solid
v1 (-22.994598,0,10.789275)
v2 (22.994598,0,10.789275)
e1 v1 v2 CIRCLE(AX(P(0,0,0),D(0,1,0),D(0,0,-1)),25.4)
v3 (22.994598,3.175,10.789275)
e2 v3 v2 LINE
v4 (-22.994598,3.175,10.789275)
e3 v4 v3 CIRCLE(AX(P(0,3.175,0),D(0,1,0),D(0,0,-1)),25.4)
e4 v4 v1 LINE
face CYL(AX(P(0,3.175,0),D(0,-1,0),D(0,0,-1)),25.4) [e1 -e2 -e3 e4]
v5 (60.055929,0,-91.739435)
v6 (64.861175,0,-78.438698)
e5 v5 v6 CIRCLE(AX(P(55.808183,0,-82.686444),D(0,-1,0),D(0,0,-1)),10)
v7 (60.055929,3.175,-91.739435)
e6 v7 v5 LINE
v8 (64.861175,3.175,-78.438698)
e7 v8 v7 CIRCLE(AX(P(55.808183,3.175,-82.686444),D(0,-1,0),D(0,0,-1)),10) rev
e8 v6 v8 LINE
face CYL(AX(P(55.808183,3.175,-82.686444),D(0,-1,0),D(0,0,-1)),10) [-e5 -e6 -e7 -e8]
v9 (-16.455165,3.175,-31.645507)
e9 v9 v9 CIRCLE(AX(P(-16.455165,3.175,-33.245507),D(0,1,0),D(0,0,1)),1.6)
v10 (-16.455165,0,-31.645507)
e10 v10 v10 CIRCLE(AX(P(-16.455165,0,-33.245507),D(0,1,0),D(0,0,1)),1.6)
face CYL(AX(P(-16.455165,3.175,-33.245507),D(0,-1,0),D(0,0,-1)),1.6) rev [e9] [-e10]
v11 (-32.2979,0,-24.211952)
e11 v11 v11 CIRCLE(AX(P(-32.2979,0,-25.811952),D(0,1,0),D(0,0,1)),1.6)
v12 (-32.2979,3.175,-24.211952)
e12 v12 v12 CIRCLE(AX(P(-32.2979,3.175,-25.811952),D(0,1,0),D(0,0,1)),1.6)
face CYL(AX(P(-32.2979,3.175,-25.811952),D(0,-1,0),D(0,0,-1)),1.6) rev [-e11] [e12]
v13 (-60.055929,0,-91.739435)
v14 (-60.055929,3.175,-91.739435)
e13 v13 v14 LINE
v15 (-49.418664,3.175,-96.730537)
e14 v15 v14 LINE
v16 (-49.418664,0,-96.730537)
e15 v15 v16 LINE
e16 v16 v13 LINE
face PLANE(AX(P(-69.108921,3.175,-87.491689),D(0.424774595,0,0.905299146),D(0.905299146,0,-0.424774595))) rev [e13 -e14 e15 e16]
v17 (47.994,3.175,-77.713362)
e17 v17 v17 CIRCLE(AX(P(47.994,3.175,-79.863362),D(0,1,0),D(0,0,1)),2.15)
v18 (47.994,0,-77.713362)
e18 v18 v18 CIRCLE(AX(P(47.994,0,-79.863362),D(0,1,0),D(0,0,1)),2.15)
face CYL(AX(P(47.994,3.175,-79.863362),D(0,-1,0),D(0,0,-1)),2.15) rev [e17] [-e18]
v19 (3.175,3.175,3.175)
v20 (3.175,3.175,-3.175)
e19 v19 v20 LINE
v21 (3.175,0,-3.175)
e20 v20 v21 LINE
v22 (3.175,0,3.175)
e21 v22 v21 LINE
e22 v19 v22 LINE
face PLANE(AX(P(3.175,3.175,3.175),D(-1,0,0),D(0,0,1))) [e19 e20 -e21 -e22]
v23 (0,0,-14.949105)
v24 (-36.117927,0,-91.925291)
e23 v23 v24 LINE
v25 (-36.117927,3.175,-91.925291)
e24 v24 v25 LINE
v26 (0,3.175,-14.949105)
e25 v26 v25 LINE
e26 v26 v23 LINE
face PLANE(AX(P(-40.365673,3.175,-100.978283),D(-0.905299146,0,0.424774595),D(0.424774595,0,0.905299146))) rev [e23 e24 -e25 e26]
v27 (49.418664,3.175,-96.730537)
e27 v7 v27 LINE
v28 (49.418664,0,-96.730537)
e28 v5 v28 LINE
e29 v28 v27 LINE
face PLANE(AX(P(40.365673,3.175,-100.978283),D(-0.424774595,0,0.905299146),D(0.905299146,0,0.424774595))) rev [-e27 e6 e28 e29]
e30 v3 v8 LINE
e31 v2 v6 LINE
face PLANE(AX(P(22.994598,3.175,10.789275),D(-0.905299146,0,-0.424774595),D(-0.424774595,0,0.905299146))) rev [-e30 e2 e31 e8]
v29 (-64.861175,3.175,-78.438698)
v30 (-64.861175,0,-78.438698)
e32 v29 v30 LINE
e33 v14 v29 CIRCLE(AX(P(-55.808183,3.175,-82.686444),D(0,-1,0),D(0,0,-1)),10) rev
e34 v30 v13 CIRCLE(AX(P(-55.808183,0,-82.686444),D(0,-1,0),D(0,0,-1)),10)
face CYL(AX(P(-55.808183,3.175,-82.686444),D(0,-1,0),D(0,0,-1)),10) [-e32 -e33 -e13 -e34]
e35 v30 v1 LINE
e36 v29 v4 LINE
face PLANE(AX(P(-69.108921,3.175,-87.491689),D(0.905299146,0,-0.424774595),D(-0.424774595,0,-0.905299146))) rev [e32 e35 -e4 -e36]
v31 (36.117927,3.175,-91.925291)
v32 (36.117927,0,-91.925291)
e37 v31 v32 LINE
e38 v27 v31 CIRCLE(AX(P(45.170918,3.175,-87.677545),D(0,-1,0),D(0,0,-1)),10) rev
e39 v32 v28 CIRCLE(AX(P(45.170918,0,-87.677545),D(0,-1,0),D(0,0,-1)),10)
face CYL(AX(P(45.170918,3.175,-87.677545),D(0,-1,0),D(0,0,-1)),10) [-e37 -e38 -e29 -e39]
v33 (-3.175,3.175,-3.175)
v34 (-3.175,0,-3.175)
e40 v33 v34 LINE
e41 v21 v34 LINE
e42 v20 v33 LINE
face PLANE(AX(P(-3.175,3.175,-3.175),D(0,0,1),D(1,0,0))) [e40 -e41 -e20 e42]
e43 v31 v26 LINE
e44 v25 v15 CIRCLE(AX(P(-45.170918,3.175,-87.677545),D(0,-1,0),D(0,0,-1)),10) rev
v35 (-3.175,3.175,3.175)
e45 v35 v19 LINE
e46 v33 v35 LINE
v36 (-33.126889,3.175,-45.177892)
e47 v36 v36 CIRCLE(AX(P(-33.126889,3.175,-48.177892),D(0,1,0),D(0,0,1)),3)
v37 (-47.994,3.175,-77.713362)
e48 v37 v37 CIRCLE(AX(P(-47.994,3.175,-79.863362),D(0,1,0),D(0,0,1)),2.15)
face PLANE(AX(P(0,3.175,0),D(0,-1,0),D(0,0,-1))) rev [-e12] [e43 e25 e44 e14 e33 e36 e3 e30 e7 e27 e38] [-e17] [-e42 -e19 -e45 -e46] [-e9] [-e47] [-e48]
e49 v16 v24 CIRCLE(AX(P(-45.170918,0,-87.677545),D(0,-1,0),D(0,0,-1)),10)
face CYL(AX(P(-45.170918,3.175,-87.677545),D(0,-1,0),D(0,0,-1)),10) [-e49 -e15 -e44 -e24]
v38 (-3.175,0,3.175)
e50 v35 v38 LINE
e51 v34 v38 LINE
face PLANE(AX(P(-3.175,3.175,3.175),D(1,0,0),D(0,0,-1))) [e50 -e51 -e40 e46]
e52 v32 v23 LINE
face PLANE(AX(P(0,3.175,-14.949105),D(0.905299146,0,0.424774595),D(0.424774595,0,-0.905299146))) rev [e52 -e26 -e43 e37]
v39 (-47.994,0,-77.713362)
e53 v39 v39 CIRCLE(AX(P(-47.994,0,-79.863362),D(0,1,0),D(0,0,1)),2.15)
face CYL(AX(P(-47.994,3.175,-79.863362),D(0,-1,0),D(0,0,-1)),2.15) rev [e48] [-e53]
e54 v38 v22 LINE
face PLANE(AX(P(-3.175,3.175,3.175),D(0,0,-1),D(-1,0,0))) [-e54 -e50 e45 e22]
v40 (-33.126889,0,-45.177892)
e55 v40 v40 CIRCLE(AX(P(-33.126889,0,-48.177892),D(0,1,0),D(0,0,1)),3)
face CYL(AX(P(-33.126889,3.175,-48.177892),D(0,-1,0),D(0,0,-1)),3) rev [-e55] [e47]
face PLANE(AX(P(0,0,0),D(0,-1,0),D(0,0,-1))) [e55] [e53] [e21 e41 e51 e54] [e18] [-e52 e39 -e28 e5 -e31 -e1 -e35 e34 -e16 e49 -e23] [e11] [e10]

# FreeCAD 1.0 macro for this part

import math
import FreeCAD as App
import Part
import Sketcher

V = App.Vector


def edges_at(feature, points):
    """Names of the edges that pass closest to the given points."""
    edges = feature.Shape.Edges
    near = lambda p: min(range(len(edges)), key=lambda i: edges[i].distToShape(Part.Vertex(*p))[0])
    return sorted({f"Edge{near(p) + 1}" for p in points})


def add_polygon(sketch, points):
    """Adds a closed chain of lines whose ends are joined by coincident constraints."""
    first, n = sketch.GeometryCount, len(points)
    for a, b in zip(points, points[1:] + points[:1]):
        sketch.addGeometry(Part.LineSegment(App.Vector(*a, 0), App.Vector(*b, 0)), False)
    for i in range(n):
        sketch.addConstraint(Sketcher.Constraint("Coincident", first + i, 2, first + (i + 1) % n, 1))

doc = App.newDocument("Part")
body = doc.addObject("PartDesign::Body", "Body")

# Sketch on XZ plane
sketch1 = body.newObject("Sketcher::SketchObject", "Sketch")
sketch1.AttachmentSupport = (doc.getObject("XZ_Plane"), [""])
sketch1.MapMode = "FlatFace"
sketch1.addGeometry(Part.LineSegment(V(-69.1, -87.5, 0), V(-23, 10.8, 0)), False)  # 0
sketch1.addGeometry(Part.ArcOfCircle(Part.Circle(V(0, 0, 0), V(0, 0, 1), 25.4), math.radians(25), math.radians(155)), False)  # 1
sketch1.addGeometry(Part.LineSegment(V(23, 10.8, 0), V(69.1, -87.5, 0)), False)  # 2
sketch1.addGeometry(Part.LineSegment(V(69.1, -87.5, 0), V(40.4, -101, 0)), False)  # 3
sketch1.addGeometry(Part.LineSegment(V(40.4, -101, 0), V(0, -14.9, 0)), False)  # 4
sketch1.addGeometry(Part.LineSegment(V(0, -14.9, 0), V(-40.4, -101, 0)), False)  # 5
sketch1.addGeometry(Part.LineSegment(V(-40.4, -101, 0), V(-69.1, -87.5, 0)), False)  # 6
sketch1.addGeometry(Part.Circle(V(-32.3, -25.8, 0), V(0, 0, 1), 1.6), False)  # 7
sketch1.addGeometry(Part.Circle(V(-16.5, -33.2, 0), V(0, 0, 1), 1.6), False)  # 8
add_polygon(sketch1, [(3.2, 3.2), (-3.2, 3.2), (-3.2, -3.2), (3.2, -3.2)])  # lines 9-12
sketch1.addGeometry(Part.Circle(V(-33.1, -48.2, 0), V(0, 0, 1), 3), False)  # 13
sketch1.addGeometry(Part.Circle(V(-48, -79.9, 0), V(0, 0, 1), 2.1), False)  # 14
sketch1.addGeometry(Part.Circle(V(48, -79.9, 0), V(0, 0, 1), 2.1), False)  # 15
sketch1.addConstraint([
    Sketcher.Constraint("Tangent", 0, 2, 1, 2),
    Sketcher.Constraint("Tangent", 1, 1, 2, 1),
    Sketcher.Constraint("Coincident", 2, 2, 3, 1),
    Sketcher.Constraint("Coincident", 3, 2, 4, 1),
    Sketcher.Constraint("Coincident", 4, 2, 5, 1),
    Sketcher.Constraint("Coincident", 5, 2, 6, 1),
    Sketcher.Constraint("Coincident", 6, 2, 0, 1),
    Sketcher.Constraint("Horizontal", 9),
    Sketcher.Constraint("Vertical", 10),
    Sketcher.Constraint("Horizontal", 11),
    Sketcher.Constraint("Vertical", 12),
    Sketcher.Constraint("Coincident", 1, 3, -1, 1),
    Sketcher.Constraint("Equal", 7, 8),
    Sketcher.Constraint("Equal", 14, 15),
    Sketcher.Constraint("Symmetric", 9, 2, 11, 2, -1, 1),
    Sketcher.Constraint("Symmetric", 14, 3, 15, 3, -2),
    Sketcher.Constraint("Symmetric", 3, 2, 5, 2, -2),
    Sketcher.Constraint("Symmetric", 2, 2, 6, 2, -2),
    Sketcher.Constraint("PointOnObject", 4, 2, -2),
    Sketcher.Constraint("Perpendicular", 2, 3),
    Sketcher.Constraint("Perpendicular", 3, 4),
    Sketcher.Constraint("Equal", 11, 10),
    Sketcher.Constraint("Diameter", 13, 6.0),
    Sketcher.Constraint("Diameter", 7, 3.2),
    Sketcher.Constraint("Diameter", 14, 4.3),
    Sketcher.Constraint("Radius", 1, 25.4),
    Sketcher.Constraint("DistanceX", 9, 2, 9, 1, 6.35),
    Sketcher.Constraint("Distance", 3, 31.75),
    Sketcher.Constraint("DistanceX", 14, 3, -1, 1, 47.994),
    Sketcher.Constraint("DistanceX", 7, 3, -1, 1, 32.2979),
    Sketcher.Constraint("DistanceX", 0, 2, -1, 1, 22.994598),
    Sketcher.Constraint("DistanceY", 7, 3, -1, 1, 25.811952),
    Sketcher.Constraint("DistanceX", 13, 3, -1, 1, 33.126889),
    Sketcher.Constraint("DistanceY", 13, 3, -1, 1, 48.177892),
    Sketcher.Constraint("DistanceY", 14, 3, -1, 1, 79.863362),
    Sketcher.Constraint("DistanceX", -1, 1, 2, 2, 69.108921),
    Sketcher.Constraint("DistanceY", 8, 3, 0, 2, 44.034782),
    Sketcher.Constraint("DistanceX", 8, 3, -1, 1, 16.455165),
])
pad1 = body.newObject("PartDesign::Pad", "Pad")
pad1.Profile = sketch1
pad1.Length = 3.175
pad1.Reversed = True
doc.recompute()

fillet = body.newObject("PartDesign::Fillet", "Fillet")
fillet.Base = (pad1, edges_at(pad1, [
    (-40.366, 1.587, -100.978),
    (40.366, 1.587, -100.978),
    (69.109, 1.587, -87.492),
    (-69.109, 1.587, -87.492),
]))
fillet.Radius = 10

doc.recompute()
